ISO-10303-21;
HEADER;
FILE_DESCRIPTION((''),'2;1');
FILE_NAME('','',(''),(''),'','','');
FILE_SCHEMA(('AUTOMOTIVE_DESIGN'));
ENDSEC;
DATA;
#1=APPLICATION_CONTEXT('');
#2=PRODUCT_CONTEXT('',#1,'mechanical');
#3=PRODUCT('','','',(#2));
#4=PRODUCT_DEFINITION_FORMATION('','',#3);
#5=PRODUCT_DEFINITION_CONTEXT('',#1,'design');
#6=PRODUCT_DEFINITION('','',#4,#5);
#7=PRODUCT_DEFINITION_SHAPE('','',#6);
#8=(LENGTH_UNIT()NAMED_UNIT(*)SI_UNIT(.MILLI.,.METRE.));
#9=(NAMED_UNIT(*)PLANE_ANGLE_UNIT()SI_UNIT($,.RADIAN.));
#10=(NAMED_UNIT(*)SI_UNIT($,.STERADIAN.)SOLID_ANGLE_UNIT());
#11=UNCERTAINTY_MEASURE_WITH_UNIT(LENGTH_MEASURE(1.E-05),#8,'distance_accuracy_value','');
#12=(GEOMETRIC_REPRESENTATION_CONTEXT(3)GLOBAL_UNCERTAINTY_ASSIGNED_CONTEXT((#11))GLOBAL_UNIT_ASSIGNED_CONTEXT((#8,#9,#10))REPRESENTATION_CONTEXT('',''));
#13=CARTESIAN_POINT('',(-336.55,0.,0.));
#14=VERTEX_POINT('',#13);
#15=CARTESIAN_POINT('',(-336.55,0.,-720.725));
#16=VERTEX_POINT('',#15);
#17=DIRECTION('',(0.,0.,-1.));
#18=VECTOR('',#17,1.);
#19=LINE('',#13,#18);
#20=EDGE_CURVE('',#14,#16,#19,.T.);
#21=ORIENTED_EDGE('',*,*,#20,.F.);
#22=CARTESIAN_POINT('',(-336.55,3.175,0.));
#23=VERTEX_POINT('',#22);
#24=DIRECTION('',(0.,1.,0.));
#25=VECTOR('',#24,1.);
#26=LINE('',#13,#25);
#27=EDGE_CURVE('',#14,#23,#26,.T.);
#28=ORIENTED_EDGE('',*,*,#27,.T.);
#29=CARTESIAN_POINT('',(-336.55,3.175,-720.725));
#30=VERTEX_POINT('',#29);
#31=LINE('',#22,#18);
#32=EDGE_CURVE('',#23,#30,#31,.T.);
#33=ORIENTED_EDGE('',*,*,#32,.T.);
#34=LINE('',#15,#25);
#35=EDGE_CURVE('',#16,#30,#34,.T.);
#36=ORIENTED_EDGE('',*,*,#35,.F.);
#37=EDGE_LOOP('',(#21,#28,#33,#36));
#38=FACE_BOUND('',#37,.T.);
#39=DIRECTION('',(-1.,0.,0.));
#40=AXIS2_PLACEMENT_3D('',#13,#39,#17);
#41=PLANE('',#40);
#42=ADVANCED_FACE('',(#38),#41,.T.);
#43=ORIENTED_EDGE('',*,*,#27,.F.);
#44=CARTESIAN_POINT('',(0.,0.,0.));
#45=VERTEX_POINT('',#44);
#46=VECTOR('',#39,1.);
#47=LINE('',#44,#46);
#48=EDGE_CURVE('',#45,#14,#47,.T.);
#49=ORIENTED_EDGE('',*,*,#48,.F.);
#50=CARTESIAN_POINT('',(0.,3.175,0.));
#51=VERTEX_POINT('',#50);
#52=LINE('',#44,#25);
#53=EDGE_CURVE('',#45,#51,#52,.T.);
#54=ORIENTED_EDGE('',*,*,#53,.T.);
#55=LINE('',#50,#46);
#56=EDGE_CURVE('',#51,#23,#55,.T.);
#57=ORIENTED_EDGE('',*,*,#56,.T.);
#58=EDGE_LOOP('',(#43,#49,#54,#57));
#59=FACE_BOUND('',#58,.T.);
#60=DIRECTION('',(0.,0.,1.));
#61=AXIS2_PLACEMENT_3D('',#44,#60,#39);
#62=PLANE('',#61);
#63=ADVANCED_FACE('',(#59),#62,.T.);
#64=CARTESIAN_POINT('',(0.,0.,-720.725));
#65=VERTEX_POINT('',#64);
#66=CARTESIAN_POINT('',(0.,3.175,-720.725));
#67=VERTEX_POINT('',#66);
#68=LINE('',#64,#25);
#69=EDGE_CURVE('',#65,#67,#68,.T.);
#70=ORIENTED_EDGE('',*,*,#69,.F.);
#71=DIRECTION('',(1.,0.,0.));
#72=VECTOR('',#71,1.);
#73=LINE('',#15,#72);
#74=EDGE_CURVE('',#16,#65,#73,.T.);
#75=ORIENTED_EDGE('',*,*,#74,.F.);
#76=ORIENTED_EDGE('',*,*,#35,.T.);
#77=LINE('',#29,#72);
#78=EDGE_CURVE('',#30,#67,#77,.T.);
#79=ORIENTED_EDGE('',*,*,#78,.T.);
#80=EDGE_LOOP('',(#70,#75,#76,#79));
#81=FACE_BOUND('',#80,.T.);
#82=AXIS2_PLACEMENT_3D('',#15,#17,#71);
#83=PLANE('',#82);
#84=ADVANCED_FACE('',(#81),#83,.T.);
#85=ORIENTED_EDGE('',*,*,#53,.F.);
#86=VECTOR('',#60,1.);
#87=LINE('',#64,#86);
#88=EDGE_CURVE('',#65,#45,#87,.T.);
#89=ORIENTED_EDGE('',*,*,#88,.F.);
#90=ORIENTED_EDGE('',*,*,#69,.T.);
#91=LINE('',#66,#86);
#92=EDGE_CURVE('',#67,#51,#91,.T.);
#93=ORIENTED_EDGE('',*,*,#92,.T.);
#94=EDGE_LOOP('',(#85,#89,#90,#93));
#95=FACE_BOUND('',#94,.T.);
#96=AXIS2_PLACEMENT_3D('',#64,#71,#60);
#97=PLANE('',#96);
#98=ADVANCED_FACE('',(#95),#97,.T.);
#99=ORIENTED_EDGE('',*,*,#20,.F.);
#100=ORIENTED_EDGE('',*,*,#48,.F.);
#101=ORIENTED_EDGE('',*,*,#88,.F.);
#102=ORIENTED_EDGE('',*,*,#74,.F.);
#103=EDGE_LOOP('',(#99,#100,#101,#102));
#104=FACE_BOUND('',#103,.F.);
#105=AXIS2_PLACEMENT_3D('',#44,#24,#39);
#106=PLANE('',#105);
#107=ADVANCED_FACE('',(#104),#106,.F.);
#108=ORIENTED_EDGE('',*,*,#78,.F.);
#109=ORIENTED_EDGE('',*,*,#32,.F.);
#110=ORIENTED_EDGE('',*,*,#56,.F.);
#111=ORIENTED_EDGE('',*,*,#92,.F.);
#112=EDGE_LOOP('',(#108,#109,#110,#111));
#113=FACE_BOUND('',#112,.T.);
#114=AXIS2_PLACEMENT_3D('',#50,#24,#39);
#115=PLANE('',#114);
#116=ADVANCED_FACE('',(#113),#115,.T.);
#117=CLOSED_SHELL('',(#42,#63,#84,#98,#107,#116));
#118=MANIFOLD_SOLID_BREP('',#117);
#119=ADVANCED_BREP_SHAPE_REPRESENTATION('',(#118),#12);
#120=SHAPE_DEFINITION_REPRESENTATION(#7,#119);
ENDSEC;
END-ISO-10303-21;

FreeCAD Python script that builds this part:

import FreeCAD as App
import Part
import Sketcher

V = App.Vector
Q = App.Units.Quantity


def add_polygon(sketch, points):
    """Adds a closed chain of lines whose ends are joined by coincident constraints."""
    first, n = sketch.GeometryCount, len(points)
    for a, b in zip(points, points[1:] + points[:1]):
        sketch.addGeometry(Part.LineSegment(App.Vector(*a, 0), App.Vector(*b, 0)), False)
    for i in range(n):
        sketch.addConstraint(Sketcher.Constraint("Coincident", first + i, 2, first + (i + 1) % n, 1))

doc = App.newDocument("Part")
body = doc.addObject("PartDesign::Body", "Body")

# Sketch on XZ plane
sketch1 = body.newObject("Sketcher::SketchObject", "Sketch")
sketch1.AttachmentSupport = (doc.getObject("XZ_Plane"), [""])
sketch1.MapMode = "FlatFace"
add_polygon(sketch1, [(-336.55, 0), (0, 0), (0, -720.725), (-336.55, -720.725)])  # lines 0-3
sketch1.addConstraint([
    Sketcher.Constraint("Horizontal", 0),
    Sketcher.Constraint("Vertical", 1),
    Sketcher.Constraint("Horizontal", 2),
    Sketcher.Constraint("Vertical", 3),
    Sketcher.Constraint("Coincident", 0, 2, -1, 1),
    Sketcher.Constraint("DistanceX", 0, 1, 0, 2, Q("13.25 in")),
    Sketcher.Constraint("DistanceY", 1, 2, 1, 1, Q("28.375 in")),
])
pad1 = body.newObject("PartDesign::Pad", "Pad")
pad1.Profile = sketch1
pad1.Length = Q("0.125 in")
pad1.Reversed = True

doc.recompute()
